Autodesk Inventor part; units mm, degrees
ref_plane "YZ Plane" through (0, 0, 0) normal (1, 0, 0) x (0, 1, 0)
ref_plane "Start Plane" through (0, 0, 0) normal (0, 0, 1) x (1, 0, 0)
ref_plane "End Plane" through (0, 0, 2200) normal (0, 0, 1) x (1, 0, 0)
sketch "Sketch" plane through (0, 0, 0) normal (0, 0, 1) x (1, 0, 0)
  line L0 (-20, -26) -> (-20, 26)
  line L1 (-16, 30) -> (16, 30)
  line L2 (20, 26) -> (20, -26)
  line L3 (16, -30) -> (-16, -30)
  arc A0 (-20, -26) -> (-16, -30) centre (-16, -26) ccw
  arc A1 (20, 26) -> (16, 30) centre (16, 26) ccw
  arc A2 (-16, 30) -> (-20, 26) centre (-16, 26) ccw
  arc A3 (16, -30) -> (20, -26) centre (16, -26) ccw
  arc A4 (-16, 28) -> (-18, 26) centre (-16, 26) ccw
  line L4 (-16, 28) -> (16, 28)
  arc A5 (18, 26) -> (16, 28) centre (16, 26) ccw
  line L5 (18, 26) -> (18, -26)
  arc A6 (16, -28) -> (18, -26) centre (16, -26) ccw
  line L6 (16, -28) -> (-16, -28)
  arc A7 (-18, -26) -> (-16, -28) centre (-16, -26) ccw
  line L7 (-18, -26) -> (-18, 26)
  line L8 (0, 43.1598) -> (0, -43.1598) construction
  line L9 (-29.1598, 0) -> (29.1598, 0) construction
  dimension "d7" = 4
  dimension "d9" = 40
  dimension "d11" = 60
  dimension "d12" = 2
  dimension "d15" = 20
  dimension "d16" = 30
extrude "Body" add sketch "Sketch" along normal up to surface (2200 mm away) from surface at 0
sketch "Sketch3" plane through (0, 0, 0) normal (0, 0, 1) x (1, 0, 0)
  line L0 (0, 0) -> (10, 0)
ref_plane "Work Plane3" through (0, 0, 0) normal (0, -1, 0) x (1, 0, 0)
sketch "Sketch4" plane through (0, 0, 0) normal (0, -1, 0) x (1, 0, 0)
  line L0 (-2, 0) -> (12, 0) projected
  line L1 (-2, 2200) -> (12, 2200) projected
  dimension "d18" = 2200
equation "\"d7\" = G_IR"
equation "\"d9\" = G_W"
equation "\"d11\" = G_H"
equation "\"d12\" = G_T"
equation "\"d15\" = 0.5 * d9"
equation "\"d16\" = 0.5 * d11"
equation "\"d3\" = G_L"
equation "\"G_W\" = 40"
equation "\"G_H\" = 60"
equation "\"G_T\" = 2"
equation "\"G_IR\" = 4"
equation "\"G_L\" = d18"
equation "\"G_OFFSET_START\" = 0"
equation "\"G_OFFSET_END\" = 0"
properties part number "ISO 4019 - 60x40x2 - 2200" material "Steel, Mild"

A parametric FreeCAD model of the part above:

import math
import FreeCAD as App
import Part
import Sketcher

V = App.Vector

doc = App.newDocument("Part")
body = doc.addObject("PartDesign::Body", "Body")

sketch1 = body.newObject("Sketcher::SketchObject", "Sketch")
sketch1.AttachmentSupport = (doc.getObject("XY_Plane"), [""])
sketch1.MapMode = "FlatFace"
sketch1.addGeometry(Part.LineSegment(V(-20, 26, 0), V(-20, -26, 0)), False)
sketch1.addGeometry(Part.ArcOfCircle(Part.Circle(V(-16, -26, 0), V(0, 0, 1), 4), math.radians(180), math.radians(270)), False)
sketch1.addGeometry(Part.LineSegment(V(-16, -30, 0), V(16, -30, 0)), False)
sketch1.addGeometry(Part.ArcOfCircle(Part.Circle(V(16, -26, 0), V(0, 0, 1), 4), math.radians(-90), math.radians(0)), False)
sketch1.addGeometry(Part.LineSegment(V(20, -26, 0), V(20, 26, 0)), False)
sketch1.addGeometry(Part.ArcOfCircle(Part.Circle(V(16, 26, 0), V(0, 0, 1), 4), math.radians(0), math.radians(90)), False)
sketch1.addGeometry(Part.LineSegment(V(16, 30, 0), V(-16, 30, 0)), False)
sketch1.addGeometry(Part.ArcOfCircle(Part.Circle(V(-16, 26, 0), V(0, 0, 1), 4), math.radians(90), math.radians(180)), False)
sketch1.addGeometry(Part.ArcOfCircle(Part.Circle(V(-16, 26, 0), V(0, 0, 1), 2), math.radians(90), math.radians(180)), False)
sketch1.addGeometry(Part.LineSegment(V(-16, 28, 0), V(16, 28, 0)), False)
sketch1.addGeometry(Part.ArcOfCircle(Part.Circle(V(16, 26, 0), V(0, 0, 1), 2), math.radians(0), math.radians(90)), False)
sketch1.addGeometry(Part.LineSegment(V(18, 26, 0), V(18, -26, 0)), False)
sketch1.addGeometry(Part.ArcOfCircle(Part.Circle(V(16, -26, 0), V(0, 0, 1), 2), math.radians(-90), math.radians(0)), False)
sketch1.addGeometry(Part.LineSegment(V(16, -28, 0), V(-16, -28, 0)), False)
sketch1.addGeometry(Part.ArcOfCircle(Part.Circle(V(-16, -26, 0), V(0, 0, 1), 2), math.radians(180), math.radians(270)), False)
sketch1.addGeometry(Part.LineSegment(V(-18, -26, 0), V(-18, 26, 0)), False)
sketch1.addConstraint(Sketcher.Constraint("Tangent", 0, 2, 1, 1))
sketch1.addConstraint(Sketcher.Constraint("Tangent", 1, 2, 2, 1))
sketch1.addConstraint(Sketcher.Constraint("Tangent", 2, 2, 3, 1))
sketch1.addConstraint(Sketcher.Constraint("Tangent", 3, 2, 4, 1))
sketch1.addConstraint(Sketcher.Constraint("Tangent", 4, 2, 5, 1))
sketch1.addConstraint(Sketcher.Constraint("Tangent", 5, 2, 6, 1))
sketch1.addConstraint(Sketcher.Constraint("Tangent", 6, 2, 7, 1))
sketch1.addConstraint(Sketcher.Constraint("Tangent", 7, 2, 0, 1))
sketch1.addConstraint(Sketcher.Constraint("Tangent", 8, 1, 9, 1))
sketch1.addConstraint(Sketcher.Constraint("Tangent", 9, 2, 10, 2))
sketch1.addConstraint(Sketcher.Constraint("Tangent", 10, 1, 11, 1))
sketch1.addConstraint(Sketcher.Constraint("Tangent", 11, 2, 12, 2))
sketch1.addConstraint(Sketcher.Constraint("Tangent", 12, 1, 13, 1))
sketch1.addConstraint(Sketcher.Constraint("Tangent", 13, 2, 14, 2))
sketch1.addConstraint(Sketcher.Constraint("Tangent", 14, 1, 15, 1))
sketch1.addConstraint(Sketcher.Constraint("Tangent", 15, 2, 8, 2))
sketch1.addConstraint(Sketcher.Constraint("Vertical", 0))
sketch1.addConstraint(Sketcher.Constraint("Horizontal", 2))
sketch1.addConstraint(Sketcher.Constraint("Vertical", 4))
sketch1.addConstraint(Sketcher.Constraint("Horizontal", 6))
sketch1.addConstraint(Sketcher.Constraint("Horizontal", 9))
sketch1.addConstraint(Sketcher.Constraint("Vertical", 11))
sketch1.addConstraint(Sketcher.Constraint("Horizontal", 13))
sketch1.addConstraint(Sketcher.Constraint("Vertical", 15))
sketch1.addConstraint(Sketcher.Constraint("Coincident", 8, 3, 7, 3))
sketch1.addConstraint(Sketcher.Constraint("Coincident", 10, 3, 5, 3))
sketch1.addConstraint(Sketcher.Constraint("Coincident", 12, 3, 3, 3))
sketch1.addConstraint(Sketcher.Constraint("Equal", 1, 3))
sketch1.addConstraint(Sketcher.Constraint("Equal", 3, 5))
sketch1.addConstraint(Sketcher.Constraint("Equal", 5, 7))
sketch1.addConstraint(Sketcher.Constraint("Equal", 12, 14))
sketch1.addConstraint(Sketcher.Constraint("Symmetric", 1, 3, 5, 3, -1, 1))
sketch1.addConstraint(Sketcher.Constraint("Radius", 1, 4.0))
sketch1.addConstraint(Sketcher.Constraint("Radius", 8, 2.0))
sketch1.addConstraint(Sketcher.Constraint("DistanceX", 0, 2, -1, 1, 20.0))
sketch1.addConstraint(Sketcher.Constraint("DistanceY", 1, 2, -1, 1, 30.0))
pad1 = body.newObject("PartDesign::Pad", "Pad")
pad1.Profile = sketch1
pad1.Length = 2200

doc.recompute()
